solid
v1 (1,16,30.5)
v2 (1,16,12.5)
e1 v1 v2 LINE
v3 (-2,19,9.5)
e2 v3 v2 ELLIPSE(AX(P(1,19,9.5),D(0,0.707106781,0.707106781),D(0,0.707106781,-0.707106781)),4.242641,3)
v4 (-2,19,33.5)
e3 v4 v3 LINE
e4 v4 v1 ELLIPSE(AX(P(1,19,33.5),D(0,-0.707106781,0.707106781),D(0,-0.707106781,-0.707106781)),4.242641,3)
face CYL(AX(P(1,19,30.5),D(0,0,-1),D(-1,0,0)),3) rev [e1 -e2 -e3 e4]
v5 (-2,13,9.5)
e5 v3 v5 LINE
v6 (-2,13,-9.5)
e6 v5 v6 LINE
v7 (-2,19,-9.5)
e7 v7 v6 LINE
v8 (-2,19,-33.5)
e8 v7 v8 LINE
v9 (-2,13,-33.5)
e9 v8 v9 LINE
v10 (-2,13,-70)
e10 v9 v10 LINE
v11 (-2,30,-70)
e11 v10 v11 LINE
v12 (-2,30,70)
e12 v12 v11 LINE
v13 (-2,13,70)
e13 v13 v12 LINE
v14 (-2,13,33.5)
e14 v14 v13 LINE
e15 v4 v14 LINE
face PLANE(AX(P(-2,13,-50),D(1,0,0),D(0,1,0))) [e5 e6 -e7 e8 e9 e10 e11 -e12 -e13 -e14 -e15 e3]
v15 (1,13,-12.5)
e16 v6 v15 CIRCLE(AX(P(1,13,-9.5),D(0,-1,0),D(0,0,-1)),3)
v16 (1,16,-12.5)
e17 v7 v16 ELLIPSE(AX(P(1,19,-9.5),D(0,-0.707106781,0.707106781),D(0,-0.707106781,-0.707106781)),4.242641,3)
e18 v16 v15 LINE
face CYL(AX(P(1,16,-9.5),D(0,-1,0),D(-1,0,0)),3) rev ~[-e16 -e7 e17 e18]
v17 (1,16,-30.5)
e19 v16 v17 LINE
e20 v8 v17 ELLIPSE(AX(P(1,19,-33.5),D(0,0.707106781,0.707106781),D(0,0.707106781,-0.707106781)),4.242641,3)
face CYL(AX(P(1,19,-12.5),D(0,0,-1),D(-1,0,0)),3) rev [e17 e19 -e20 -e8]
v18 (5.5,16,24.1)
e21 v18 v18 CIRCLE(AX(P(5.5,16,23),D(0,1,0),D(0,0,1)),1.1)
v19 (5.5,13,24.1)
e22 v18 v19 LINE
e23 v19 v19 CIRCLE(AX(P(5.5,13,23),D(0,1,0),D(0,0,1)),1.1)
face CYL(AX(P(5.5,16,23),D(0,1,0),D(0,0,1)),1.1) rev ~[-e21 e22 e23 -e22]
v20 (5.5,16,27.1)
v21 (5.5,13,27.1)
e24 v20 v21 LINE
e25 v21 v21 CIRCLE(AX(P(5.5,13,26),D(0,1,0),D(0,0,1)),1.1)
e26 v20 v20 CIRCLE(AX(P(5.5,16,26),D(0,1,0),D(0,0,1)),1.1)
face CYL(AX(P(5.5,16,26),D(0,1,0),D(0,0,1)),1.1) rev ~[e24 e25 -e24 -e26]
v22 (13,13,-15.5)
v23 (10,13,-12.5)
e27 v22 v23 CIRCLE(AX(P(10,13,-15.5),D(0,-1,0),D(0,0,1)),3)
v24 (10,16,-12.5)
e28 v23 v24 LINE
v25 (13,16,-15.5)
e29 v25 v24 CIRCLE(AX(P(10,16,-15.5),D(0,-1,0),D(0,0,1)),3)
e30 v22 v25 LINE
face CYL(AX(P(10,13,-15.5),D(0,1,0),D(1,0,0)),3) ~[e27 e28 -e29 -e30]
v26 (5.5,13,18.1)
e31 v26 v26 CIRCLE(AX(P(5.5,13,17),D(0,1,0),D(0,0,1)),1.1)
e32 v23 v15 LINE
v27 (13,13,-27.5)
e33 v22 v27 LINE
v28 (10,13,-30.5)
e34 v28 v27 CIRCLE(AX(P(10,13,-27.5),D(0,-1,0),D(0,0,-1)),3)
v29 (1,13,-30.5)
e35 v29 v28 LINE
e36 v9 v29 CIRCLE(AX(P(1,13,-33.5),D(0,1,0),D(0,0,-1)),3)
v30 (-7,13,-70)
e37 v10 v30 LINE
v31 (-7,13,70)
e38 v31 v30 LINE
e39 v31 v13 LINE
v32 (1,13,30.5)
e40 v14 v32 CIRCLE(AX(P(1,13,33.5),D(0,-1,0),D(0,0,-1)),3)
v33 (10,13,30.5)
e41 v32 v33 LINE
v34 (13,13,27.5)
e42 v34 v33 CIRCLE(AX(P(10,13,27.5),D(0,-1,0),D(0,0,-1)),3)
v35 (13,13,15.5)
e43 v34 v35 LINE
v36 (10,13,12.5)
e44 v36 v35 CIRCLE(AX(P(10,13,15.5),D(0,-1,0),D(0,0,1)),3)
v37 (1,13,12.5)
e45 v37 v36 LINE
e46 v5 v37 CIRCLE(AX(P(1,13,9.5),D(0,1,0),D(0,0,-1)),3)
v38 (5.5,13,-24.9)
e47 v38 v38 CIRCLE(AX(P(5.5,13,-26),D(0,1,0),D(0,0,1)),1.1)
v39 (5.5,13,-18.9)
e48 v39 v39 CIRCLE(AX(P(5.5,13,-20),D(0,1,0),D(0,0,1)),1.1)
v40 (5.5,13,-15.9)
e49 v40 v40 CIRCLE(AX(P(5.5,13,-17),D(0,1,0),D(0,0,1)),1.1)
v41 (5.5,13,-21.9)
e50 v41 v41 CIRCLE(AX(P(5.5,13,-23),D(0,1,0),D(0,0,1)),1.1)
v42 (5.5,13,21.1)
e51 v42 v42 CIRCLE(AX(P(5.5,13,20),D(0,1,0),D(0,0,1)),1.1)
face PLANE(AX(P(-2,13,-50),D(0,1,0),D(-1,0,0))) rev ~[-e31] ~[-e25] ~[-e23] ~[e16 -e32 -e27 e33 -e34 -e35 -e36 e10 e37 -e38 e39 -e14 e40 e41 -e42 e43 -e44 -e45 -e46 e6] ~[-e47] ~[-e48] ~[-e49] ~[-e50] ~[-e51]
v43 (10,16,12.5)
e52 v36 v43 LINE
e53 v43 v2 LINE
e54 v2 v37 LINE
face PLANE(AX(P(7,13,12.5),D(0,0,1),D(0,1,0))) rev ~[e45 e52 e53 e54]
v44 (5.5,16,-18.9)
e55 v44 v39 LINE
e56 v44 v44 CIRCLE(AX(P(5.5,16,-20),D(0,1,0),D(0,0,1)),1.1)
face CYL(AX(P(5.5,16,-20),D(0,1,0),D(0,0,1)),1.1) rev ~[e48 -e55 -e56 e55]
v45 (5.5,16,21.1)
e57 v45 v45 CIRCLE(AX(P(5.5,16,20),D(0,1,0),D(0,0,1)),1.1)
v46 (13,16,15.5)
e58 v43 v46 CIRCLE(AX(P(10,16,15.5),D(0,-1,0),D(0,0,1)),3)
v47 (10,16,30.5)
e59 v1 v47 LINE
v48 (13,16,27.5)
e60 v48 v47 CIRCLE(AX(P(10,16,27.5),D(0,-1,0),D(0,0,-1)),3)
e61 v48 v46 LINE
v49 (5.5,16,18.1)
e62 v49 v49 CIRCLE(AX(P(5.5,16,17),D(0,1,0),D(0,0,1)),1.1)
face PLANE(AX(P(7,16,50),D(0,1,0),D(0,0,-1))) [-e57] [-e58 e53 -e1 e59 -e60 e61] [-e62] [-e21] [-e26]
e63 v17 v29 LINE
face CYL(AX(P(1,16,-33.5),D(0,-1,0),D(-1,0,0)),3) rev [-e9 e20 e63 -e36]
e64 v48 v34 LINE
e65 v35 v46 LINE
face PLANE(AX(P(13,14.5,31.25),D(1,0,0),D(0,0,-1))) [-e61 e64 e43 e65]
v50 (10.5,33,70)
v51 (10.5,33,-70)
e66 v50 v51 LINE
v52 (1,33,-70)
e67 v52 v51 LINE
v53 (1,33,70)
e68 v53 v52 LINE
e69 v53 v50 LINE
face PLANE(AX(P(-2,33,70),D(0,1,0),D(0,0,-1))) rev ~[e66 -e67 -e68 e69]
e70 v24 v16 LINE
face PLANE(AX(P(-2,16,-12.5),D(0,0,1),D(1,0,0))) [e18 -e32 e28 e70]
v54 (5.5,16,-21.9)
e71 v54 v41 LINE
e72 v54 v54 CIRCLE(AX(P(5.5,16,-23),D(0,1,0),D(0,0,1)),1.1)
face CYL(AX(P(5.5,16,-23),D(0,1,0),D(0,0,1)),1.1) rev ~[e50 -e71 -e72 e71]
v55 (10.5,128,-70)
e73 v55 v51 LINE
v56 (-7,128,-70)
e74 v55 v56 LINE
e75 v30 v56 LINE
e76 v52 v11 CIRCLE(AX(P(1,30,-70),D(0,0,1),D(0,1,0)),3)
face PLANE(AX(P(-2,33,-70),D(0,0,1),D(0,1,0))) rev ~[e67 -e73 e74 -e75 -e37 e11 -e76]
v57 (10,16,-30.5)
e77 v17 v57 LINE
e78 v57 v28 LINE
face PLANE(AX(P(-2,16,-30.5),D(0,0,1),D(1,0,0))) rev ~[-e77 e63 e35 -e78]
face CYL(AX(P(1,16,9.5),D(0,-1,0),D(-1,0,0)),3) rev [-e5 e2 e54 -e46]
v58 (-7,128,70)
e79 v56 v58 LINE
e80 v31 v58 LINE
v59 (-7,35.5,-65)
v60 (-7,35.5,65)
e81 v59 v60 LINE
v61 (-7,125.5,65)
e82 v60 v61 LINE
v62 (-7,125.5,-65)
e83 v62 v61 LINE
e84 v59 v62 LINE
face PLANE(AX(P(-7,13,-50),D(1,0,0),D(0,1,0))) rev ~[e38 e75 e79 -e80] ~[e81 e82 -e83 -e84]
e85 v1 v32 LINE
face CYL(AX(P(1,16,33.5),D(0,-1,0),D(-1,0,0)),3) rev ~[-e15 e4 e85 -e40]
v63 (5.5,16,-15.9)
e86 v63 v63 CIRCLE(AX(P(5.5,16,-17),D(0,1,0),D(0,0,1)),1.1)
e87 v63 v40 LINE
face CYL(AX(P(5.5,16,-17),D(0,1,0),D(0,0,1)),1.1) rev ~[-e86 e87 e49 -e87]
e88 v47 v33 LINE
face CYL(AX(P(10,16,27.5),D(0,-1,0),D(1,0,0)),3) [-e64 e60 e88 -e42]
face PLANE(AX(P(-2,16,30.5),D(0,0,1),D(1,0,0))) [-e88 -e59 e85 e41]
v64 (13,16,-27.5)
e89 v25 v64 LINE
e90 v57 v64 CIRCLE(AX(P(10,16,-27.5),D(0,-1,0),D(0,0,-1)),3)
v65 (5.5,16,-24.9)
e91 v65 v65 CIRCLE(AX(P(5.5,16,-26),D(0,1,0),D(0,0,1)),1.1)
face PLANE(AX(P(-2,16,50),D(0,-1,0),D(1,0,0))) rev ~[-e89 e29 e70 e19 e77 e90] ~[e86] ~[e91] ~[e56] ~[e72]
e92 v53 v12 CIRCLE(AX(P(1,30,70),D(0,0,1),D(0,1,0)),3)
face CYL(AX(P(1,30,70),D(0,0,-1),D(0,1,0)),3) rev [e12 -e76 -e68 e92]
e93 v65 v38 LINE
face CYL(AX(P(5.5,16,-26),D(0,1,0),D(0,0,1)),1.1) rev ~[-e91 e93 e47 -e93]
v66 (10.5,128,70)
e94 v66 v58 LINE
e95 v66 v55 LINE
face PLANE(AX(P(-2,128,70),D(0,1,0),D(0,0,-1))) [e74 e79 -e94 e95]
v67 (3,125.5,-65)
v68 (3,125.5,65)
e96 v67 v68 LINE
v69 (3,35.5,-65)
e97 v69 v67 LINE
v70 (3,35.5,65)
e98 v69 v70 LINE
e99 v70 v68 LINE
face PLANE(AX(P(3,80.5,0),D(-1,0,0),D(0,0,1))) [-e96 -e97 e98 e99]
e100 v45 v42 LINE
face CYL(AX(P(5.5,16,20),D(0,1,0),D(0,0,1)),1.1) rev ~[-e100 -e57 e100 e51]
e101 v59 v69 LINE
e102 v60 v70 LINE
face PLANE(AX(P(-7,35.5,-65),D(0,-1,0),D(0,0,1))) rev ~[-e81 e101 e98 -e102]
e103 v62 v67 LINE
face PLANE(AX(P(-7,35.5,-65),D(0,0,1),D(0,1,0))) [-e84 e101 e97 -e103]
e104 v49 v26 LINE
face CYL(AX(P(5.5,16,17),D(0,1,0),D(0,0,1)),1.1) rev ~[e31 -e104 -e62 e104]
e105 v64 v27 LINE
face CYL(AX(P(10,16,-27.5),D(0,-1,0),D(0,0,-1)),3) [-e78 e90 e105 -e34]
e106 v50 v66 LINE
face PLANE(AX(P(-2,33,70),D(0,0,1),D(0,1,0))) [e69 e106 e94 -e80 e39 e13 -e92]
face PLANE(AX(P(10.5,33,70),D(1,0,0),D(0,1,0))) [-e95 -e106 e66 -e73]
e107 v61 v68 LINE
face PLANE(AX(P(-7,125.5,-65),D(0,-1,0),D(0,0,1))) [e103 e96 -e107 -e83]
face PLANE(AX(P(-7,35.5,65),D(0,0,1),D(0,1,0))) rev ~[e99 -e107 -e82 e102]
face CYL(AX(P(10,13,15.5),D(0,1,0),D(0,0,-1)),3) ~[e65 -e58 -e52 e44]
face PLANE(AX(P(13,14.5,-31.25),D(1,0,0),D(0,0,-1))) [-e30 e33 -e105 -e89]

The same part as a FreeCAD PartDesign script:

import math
import FreeCAD as App
import Part
import Sketcher

V = App.Vector


def edges_at(feature, points):
    """Names of the edges that pass closest to the given points."""
    edges = feature.Shape.Edges
    near = lambda p: min(range(len(edges)), key=lambda i: edges[i].distToShape(Part.Vertex(*p))[0])
    return sorted({f"Edge{near(p) + 1}" for p in points})


def add_polygon(sketch, points):
    """Adds a closed chain of lines whose ends are joined by coincident constraints."""
    first, n = sketch.GeometryCount, len(points)
    for a, b in zip(points, points[1:] + points[:1]):
        sketch.addGeometry(Part.LineSegment(App.Vector(*a, 0), App.Vector(*b, 0)), False)
    for i in range(n):
        sketch.addConstraint(Sketcher.Constraint("Coincident", first + i, 2, first + (i + 1) % n, 1))

doc = App.newDocument("Part")
body = doc.addObject("PartDesign::Body", "Body")

sketch1 = body.newObject("Sketcher::SketchObject", "Sketch")
sketch1.AttachmentSupport = (doc.getObject("XZ_Plane"), [""])
sketch1.MapMode = "FlatFace"
sketch1.addGeometry(Part.Circle(V(0, 0, 0), V(0, 0, 1), 10), False)
sketch1.addConstraint(Sketcher.Constraint("Coincident", 0, 3, -1, 1))
sketch1.addConstraint(Sketcher.Constraint("Diameter", 0, 20.0))
pad1 = body.newObject("PartDesign::Pad", "Pad")
pad1.Profile = sketch1
pad1.Length = 3
pad1.Reversed = True

sketch2 = body.newObject("Sketcher::SketchObject", "Sketch001")
sketch2.AttachmentSupport = (doc.getObject("XZ_Plane"), [""])
sketch2.MapMode = "FlatFace"
sketch2.AttachmentOffset = App.Placement(V(0, 0, -3), App.Rotation())
sketch2.addGeometry(Part.Circle(V(0, 0, 0), V(0, 0, 1), 5), False)
sketch2.addConstraint(Sketcher.Constraint("Coincident", 0, 3, -1, 1))
sketch2.addConstraint(Sketcher.Constraint("Diameter", 0, 10.0))
pad2 = body.newObject("PartDesign::Pad", "Pad001")
pad2.Profile = sketch2
pad2.Length = 100
pad2.Reversed = True

sketch3 = body.newObject("Sketcher::SketchObject", "Sketch002")
sketch3.AttachmentSupport = (doc.getObject("XZ_Plane"), [""])
sketch3.MapMode = "FlatFace"
sketch3.addGeometry(Part.ArcOfCircle(Part.Circle(V(0, 0, 0), V(0, 0, 1), 2.5), math.radians(-139.112229), math.radians(139.112229)), False)
sketch3.addGeometry(Part.LineSegment(V(-1.889983, 1.636449, 0), V(-1.889983, -1.636449, 0)), False)
sketch3.addConstraint(Sketcher.Constraint("Coincident", 0, 1, 1, 2))
sketch3.addConstraint(Sketcher.Constraint("Coincident", 1, 1, 0, 2))
sketch3.addConstraint(Sketcher.Constraint("Vertical", 1))
sketch3.addConstraint(Sketcher.Constraint("Coincident", 0, 3, -1, 1))
sketch3.addConstraint(Sketcher.Constraint("Radius", 0, 2.5))
sketch3.addConstraint(Sketcher.Constraint("DistanceY", 1, 2, 1, 1, 3.272897))
pocket1 = body.newObject("PartDesign::Pocket", "Pocket")
pocket1.Profile = sketch3
pocket1.Length = 15

sketch4 = body.newObject("Sketcher::SketchObject", "Sketch003")
sketch4.AttachmentSupport = (doc.getObject("XZ_Plane"), [""])
sketch4.MapMode = "FlatFace"
sketch4.AttachmentOffset = App.Placement(V(0, 0, -103), App.Rotation())
add_polygon(sketch4, [(-7, -50), (-7, 50), (7, 50), (7, -50)])
sketch4.addConstraint(Sketcher.Constraint("Vertical", 0))
sketch4.addConstraint(Sketcher.Constraint("Horizontal", 1))
sketch4.addConstraint(Sketcher.Constraint("Vertical", 2))
sketch4.addConstraint(Sketcher.Constraint("Horizontal", 3))
sketch4.addConstraint(Sketcher.Constraint("Symmetric", 0, 2, 2, 2, -1, 1))
sketch4.addConstraint(Sketcher.Constraint("DistanceX", 1, 1, 1, 2, 14.0))
sketch4.addConstraint(Sketcher.Constraint("DistanceY", 0, 1, 0, 2, 100.0))
pad3 = body.newObject("PartDesign::Pad", "Pad002")
pad3.Profile = sketch4
pad3.Length = 90

sketch5 = body.newObject("Sketcher::SketchObject", "Sketch004")
sketch5.AttachmentSupport = (doc.getObject("XZ_Plane"), [""])
sketch5.MapMode = "FlatFace"
sketch5.AttachmentOffset = App.Placement(V(0, 0, -8), App.Rotation())
sketch5.addGeometry(Part.Circle(V(0, 0, 0), V(0, 0, 1), 10), False)
sketch5.addConstraint(Sketcher.Constraint("Coincident", 0, 3, -1, 1))
sketch5.addConstraint(Sketcher.Constraint("Diameter", 0, 20.0))
pad4 = body.newObject("PartDesign::Pad", "Pad003")
pad4.Profile = sketch5
pad4.Length = 3
pad4.Reversed = True

sketch6 = body.newObject("Sketcher::SketchObject", "Sketch005")
sketch6.AttachmentSupport = (doc.getObject("XY_Plane"), [""])
sketch6.MapMode = "FlatFace"
sketch6.AttachmentOffset = App.Placement(V(0, 0, 50), App.Rotation())
add_polygon(sketch6, [(-14.176374, 13), (-14.176374, 0), (17.362076, 0), (17.362076, 13)])
sketch6.addConstraint(Sketcher.Constraint("Vertical", 0))
sketch6.addConstraint(Sketcher.Constraint("Horizontal", 1))
sketch6.addConstraint(Sketcher.Constraint("Vertical", 2))
sketch6.addConstraint(Sketcher.Constraint("Horizontal", 3))
sketch6.addConstraint(Sketcher.Constraint("PointOnObject", 0, 2, -1))
sketch6.addConstraint(Sketcher.Constraint("DistanceY", 0, 2, 0, 1, 13.0))
sketch6.addConstraint(Sketcher.Constraint("DistanceX", 1, 1, 1, 2, 31.538451))
sketch6.addConstraint(Sketcher.Constraint("DistanceX", 0, 2, -1, 1, 14.176374))
pocket2 = body.newObject("PartDesign::Pocket", "Pocket001")
pocket2.Profile = sketch6
pocket2.Length = 80

sketch7 = body.newObject("Sketcher::SketchObject", "Sketch006")
sketch7.AttachmentSupport = (doc.getObject("XY_Plane"), [""])
sketch7.MapMode = "FlatFace"
sketch7.AttachmentOffset = App.Placement(V(0, 0, 50), App.Rotation())
add_polygon(sketch7, [(-2, 103), (-2, 16), (7, 16), (7, 103)])
sketch7.addConstraint(Sketcher.Constraint("Vertical", 0))
sketch7.addConstraint(Sketcher.Constraint("Horizontal", 1))
sketch7.addConstraint(Sketcher.Constraint("Vertical", 2))
sketch7.addConstraint(Sketcher.Constraint("Horizontal", 3))
sketch7.addConstraint(Sketcher.Constraint("DistanceX", 1, 1, 1, 2, 9.0))
sketch7.addConstraint(Sketcher.Constraint("DistanceY", 0, 2, 0, 1, 87.0))
sketch7.addConstraint(Sketcher.Constraint("DistanceX", 0, 2, -1, 1, 2.0))
sketch7.addConstraint(Sketcher.Constraint("DistanceY", -1, 1, 0, 2, 16.0))
pocket3 = body.newObject("PartDesign::Pocket", "Pocket002")
pocket3.Profile = sketch7
pocket3.Length = 130

sketch8 = body.newObject("Sketcher::SketchObject", "Sketch007")
sketch8.AttachmentSupport = (doc.getObject("XZ_Plane"), [""])
sketch8.MapMode = "FlatFace"
sketch8.AttachmentOffset = App.Placement(V(0, 0, -16), App.Rotation())
add_polygon(sketch8, [(-2, -12.5), (-2, 12.5), (7, 12.5), (7, -12.5)])
sketch8.addConstraint(Sketcher.Constraint("Vertical", 0))
sketch8.addConstraint(Sketcher.Constraint("Horizontal", 1))
sketch8.addConstraint(Sketcher.Constraint("Vertical", 2))
sketch8.addConstraint(Sketcher.Constraint("Horizontal", 3))
sketch8.addConstraint(Sketcher.Constraint("DistanceX", 1, 1, 1, 2, 9.0))
sketch8.addConstraint(Sketcher.Constraint("DistanceY", 0, 1, 0, 2, 25.0))
sketch8.addConstraint(Sketcher.Constraint("DistanceX", 0, 2, -1, 1, 2.0))
sketch8.addConstraint(Sketcher.Constraint("DistanceY", -1, 1, 0, 2, 12.5))
pocket4 = body.newObject("PartDesign::Pocket", "Pocket003")
pocket4.Profile = sketch8
pocket4.Length = 80
pocket4.Reversed = True

sketch9 = body.newObject("Sketcher::SketchObject", "Sketch008")
sketch9.AttachmentSupport = (doc.getObject("YZ_Plane"), [""])
sketch9.MapMode = "FlatFace"
sketch9.AttachmentOffset = App.Placement(V(0, 0, 7), App.Rotation())
add_polygon(sketch9, [(16, 50), (13, 50), (13, 12.5), (16, 12.5)])
add_polygon(sketch9, [(16, -12.5), (13, -12.5), (13, -50), (16, -50)])
sketch9.addConstraint(Sketcher.Constraint("Horizontal", 0))
sketch9.addConstraint(Sketcher.Constraint("Vertical", 1))
sketch9.addConstraint(Sketcher.Constraint("Horizontal", 2))
sketch9.addConstraint(Sketcher.Constraint("Vertical", 3))
sketch9.addConstraint(Sketcher.Constraint("Horizontal", 4))
sketch9.addConstraint(Sketcher.Constraint("Vertical", 5))
sketch9.addConstraint(Sketcher.Constraint("Horizontal", 6))
sketch9.addConstraint(Sketcher.Constraint("Vertical", 7))
sketch9.addConstraint(Sketcher.Constraint("Symmetric", 1, 2, 4, 2, -1))
sketch9.addConstraint(Sketcher.Constraint("Symmetric", 3, 2, 6, 2, -1))
sketch9.addConstraint(Sketcher.Constraint("DistanceX", 0, 2, 0, 1, 3.0))
sketch9.addConstraint(Sketcher.Constraint("DistanceY", 1, 2, 1, 1, 37.5))
sketch9.addConstraint(Sketcher.Constraint("DistanceX", -1, 1, 0, 2, 13.0))
sketch9.addConstraint(Sketcher.Constraint("DistanceY", -1, 1, 0, 2, 50.0))
pad5 = body.newObject("PartDesign::Pad", "Pad004")
pad5.Profile = sketch9
pad5.Length = 6

sketch10 = body.newObject("Sketcher::SketchObject", "Sketch009")
sketch10.AttachmentSupport = (doc.getObject("XZ_Plane"), [""])
sketch10.MapMode = "FlatFace"
sketch10.AttachmentOffset = App.Placement(V(0, 0, -16), App.Rotation())
sketch10.addGeometry(Part.Circle(V(5.5, 17, 0), V(0, 0, 1), 1.1), False)
sketch10.addGeometry(Part.Circle(V(5.5, 20, 0), V(0, 0, 1), 1.1), False)
sketch10.addGeometry(Part.Circle(V(5.5, 23, 0), V(0, 0, 1), 1.1), False)
sketch10.addGeometry(Part.Circle(V(5.5, 26, 0), V(0, 0, 1), 1.1), False)
sketch10.addGeometry(Part.Circle(V(5.5, -26, 0), V(0, 0, 1), 1.1), False)
sketch10.addGeometry(Part.Circle(V(5.5, -23, 0), V(0, 0, 1), 1.1), False)
sketch10.addGeometry(Part.Circle(V(5.5, -20, 0), V(0, 0, 1), 1.1), False)
sketch10.addGeometry(Part.Circle(V(5.5, -17, 0), V(0, 0, 1), 1.1), False)
sketch10.addConstraint(Sketcher.Constraint("Equal", 0, 1))
sketch10.addConstraint(Sketcher.Constraint("Equal", 1, 2))
sketch10.addConstraint(Sketcher.Constraint("Equal", 2, 3))
sketch10.addConstraint(Sketcher.Constraint("Equal", 3, 4))
sketch10.addConstraint(Sketcher.Constraint("Equal", 4, 5))
sketch10.addConstraint(Sketcher.Constraint("Equal", 5, 6))
sketch10.addConstraint(Sketcher.Constraint("Equal", 6, 7))
sketch10.addConstraint(Sketcher.Constraint("Symmetric", 3, 3, 4, 3, -1))
sketch10.addConstraint(Sketcher.Constraint("Symmetric", 2, 3, 5, 3, -1))
sketch10.addConstraint(Sketcher.Constraint("Symmetric", 1, 3, 6, 3, -1))
sketch10.addConstraint(Sketcher.Constraint("Symmetric", 0, 3, 7, 3, -1))
sketch10.addConstraint(Sketcher.Constraint("Vertical", 0, 3, 1, 3))
sketch10.addConstraint(Sketcher.Constraint("Vertical", 1, 3, 2, 3))
sketch10.addConstraint(Sketcher.Constraint("Vertical", 2, 3, 3, 3))
sketch10.addConstraint(Sketcher.Constraint("Diameter", 0, 2.2))
sketch10.addConstraint(Sketcher.Constraint("DistanceY", -1, 1, 0, 3, 17.0))
sketch10.addConstraint(Sketcher.Constraint("DistanceY", -1, 1, 1, 3, 20.0))
sketch10.addConstraint(Sketcher.Constraint("DistanceY", -1, 1, 2, 3, 23.0))
sketch10.addConstraint(Sketcher.Constraint("DistanceY", -1, 1, 3, 3, 26.0))
sketch10.addConstraint(Sketcher.Constraint("DistanceX", -1, 1, 0, 3, 5.5))
pocket5 = body.newObject("PartDesign::Pocket", "Pocket004")
pocket5.Profile = sketch10
pocket5.Length = 56
pocket5.Reversed = True

sketch11 = body.newObject("Sketcher::SketchObject", "Sketch010")
sketch11.AttachmentSupport = (doc.getObject("XZ_Plane"), [""])
sketch11.MapMode = "FlatFace"
sketch11.AttachmentOffset = App.Placement(V(0, 0, -16), App.Rotation())
add_polygon(sketch11, [(-2, 30.5), (-2, 50), (13, 50), (13, 30.5)])
add_polygon(sketch11, [(-2, -50), (-2, -30.5), (13, -30.5), (13, -50)])
sketch11.addConstraint(Sketcher.Constraint("Vertical", 0))
sketch11.addConstraint(Sketcher.Constraint("Horizontal", 1))
sketch11.addConstraint(Sketcher.Constraint("Vertical", 2))
sketch11.addConstraint(Sketcher.Constraint("Horizontal", 3))
sketch11.addConstraint(Sketcher.Constraint("Vertical", 4))
sketch11.addConstraint(Sketcher.Constraint("Horizontal", 5))
sketch11.addConstraint(Sketcher.Constraint("Vertical", 6))
sketch11.addConstraint(Sketcher.Constraint("Horizontal", 7))
sketch11.addConstraint(Sketcher.Constraint("Symmetric", 3, 2, 4, 2, -1))
sketch11.addConstraint(Sketcher.Constraint("Symmetric", 1, 2, 6, 2, -1))
sketch11.addConstraint(Sketcher.Constraint("DistanceX", 1, 1, 1, 2, 15.0))
sketch11.addConstraint(Sketcher.Constraint("DistanceY", 0, 1, 0, 2, 19.5))
sketch11.addConstraint(Sketcher.Constraint("DistanceX", 0, 2, -1, 1, 2.0))
sketch11.addConstraint(Sketcher.Constraint("DistanceY", -1, 1, 0, 2, 50.0))
pocket6 = body.newObject("PartDesign::Pocket", "Pocket005")
pocket6.Profile = sketch11
pocket6.Length = 56
pocket6.Reversed = True
doc.recompute()

fillet = body.newObject("PartDesign::Fillet", "Fillet")
fillet.Base = (pocket6, edges_at(pocket6, [
    (-2, 16, 21.5),
    (-2, 14.5, 12.5),
    (-2, 14.5, -12.5),
    (13, 14.5, 12.5),
    (13, 14.5, -12.5),
    (13, 14.5, -30.5),
    (13, 14.5, 30.5),
    (-2, 16, -21.5),
    (-2, 14.5, 30.5),
    (-2, 14.5, -30.5),
]))
fillet.Radius = 3

sketch12 = body.newObject("Sketcher::SketchObject", "Sketch011")
sketch12.AttachmentSupport = (doc.getObject("XZ_Plane"), [""])
sketch12.MapMode = "FlatFace"
sketch12.AttachmentOffset = App.Placement(V(0, 0, -103), App.Rotation())
add_polygon(sketch12, [(-7, -50), (-7, 50), (-2, 50), (-2, -50)])
sketch12.addConstraint(Sketcher.Constraint("Vertical", 0))
sketch12.addConstraint(Sketcher.Constraint("Horizontal", 1))
sketch12.addConstraint(Sketcher.Constraint("Vertical", 2))
sketch12.addConstraint(Sketcher.Constraint("Horizontal", 3))
sketch12.addConstraint(Sketcher.Constraint("DistanceX", 1, 1, 1, 2, 5.0))
sketch12.addConstraint(Sketcher.Constraint("DistanceY", 0, 1, 0, 2, 100.0))
sketch12.addConstraint(Sketcher.Constraint("DistanceX", 0, 2, -1, 1, 7.0))
sketch12.addConstraint(Sketcher.Constraint("DistanceY", -1, 1, 0, 2, 50.0))
pad6 = body.newObject("PartDesign::Pad", "Pad005")
pad6.Profile = sketch12
pad6.Length = 25
pad6.Reversed = True

sketch13 = body.newObject("Sketcher::SketchObject", "Sketch012")
sketch13.AttachmentSupport = (doc.getObject("XY_Plane"), [""])
sketch13.MapMode = "FlatFace"
sketch13.AttachmentOffset = App.Placement(V(0, 0, 50), App.Rotation())
add_polygon(sketch13, [(-7, 128), (-7, 13), (-2, 13), (-2, 128)])
sketch13.addConstraint(Sketcher.Constraint("Vertical", 0))
sketch13.addConstraint(Sketcher.Constraint("Horizontal", 1))
sketch13.addConstraint(Sketcher.Constraint("Vertical", 2))
sketch13.addConstraint(Sketcher.Constraint("Horizontal", 3))
sketch13.addConstraint(Sketcher.Constraint("DistanceX", 1, 1, 1, 2, 5.0))
sketch13.addConstraint(Sketcher.Constraint("DistanceY", 0, 2, 0, 1, 115.0))
sketch13.addConstraint(Sketcher.Constraint("DistanceX", 0, 2, -1, 1, 7.0))
sketch13.addConstraint(Sketcher.Constraint("DistanceY", -1, 1, 0, 2, 13.0))
pad7 = body.newObject("PartDesign::Pad", "Pad006")
pad7.Profile = sketch13
pad7.Length = 20

sketch14 = body.newObject("Sketcher::SketchObject", "Sketch013")
sketch14.AttachmentSupport = (doc.getObject("XY_Plane"), [""])
sketch14.MapMode = "FlatFace"
sketch14.AttachmentOffset = App.Placement(V(0, 0, -50), App.Rotation())
add_polygon(sketch14, [(-2, 128), (-2, 13), (-7, 13), (-7, 128)])
sketch14.addConstraint(Sketcher.Constraint("Vertical", 0))
sketch14.addConstraint(Sketcher.Constraint("Horizontal", 1))
sketch14.addConstraint(Sketcher.Constraint("Vertical", 2))
sketch14.addConstraint(Sketcher.Constraint("Horizontal", 3))
sketch14.addConstraint(Sketcher.Constraint("DistanceX", 1, 2, 1, 1, 5.0))
sketch14.addConstraint(Sketcher.Constraint("DistanceY", 0, 2, 0, 1, 115.0))
sketch14.addConstraint(Sketcher.Constraint("DistanceX", 0, 2, -1, 1, 2.0))
sketch14.addConstraint(Sketcher.Constraint("DistanceY", -1, 1, 0, 2, 13.0))
pad8 = body.newObject("PartDesign::Pad", "Pad007")
pad8.Profile = sketch14
pad8.Length = 20
pad8.Reversed = True

sketch15 = body.newObject("Sketcher::SketchObject", "Sketch014")
sketch15.AttachmentSupport = (doc.getObject("YZ_Plane"), [""])
sketch15.MapMode = "FlatFace"
sketch15.AttachmentOffset = App.Placement(V(0, 0, -2), App.Rotation())
add_polygon(sketch15, [(128, 70), (33, 70), (33, -70), (128, -70)])
sketch15.addConstraint(Sketcher.Constraint("Horizontal", 0))
sketch15.addConstraint(Sketcher.Constraint("Vertical", 1))
sketch15.addConstraint(Sketcher.Constraint("Horizontal", 2))
sketch15.addConstraint(Sketcher.Constraint("Vertical", 3))
sketch15.addConstraint(Sketcher.Constraint("DistanceX", 0, 2, 0, 1, 95.0))
sketch15.addConstraint(Sketcher.Constraint("DistanceY", 1, 2, 1, 1, 140.0))
sketch15.addConstraint(Sketcher.Constraint("DistanceX", -1, 1, 0, 2, 33.0))
sketch15.addConstraint(Sketcher.Constraint("DistanceY", -1, 1, 0, 2, 70.0))
pad9 = body.newObject("PartDesign::Pad", "Pad008")
pad9.Profile = sketch15
pad9.Length = 15

sketch16 = body.newObject("Sketcher::SketchObject", "Sketch015")
sketch16.AttachmentSupport = (doc.getObject("YZ_Plane"), [""])
sketch16.MapMode = "FlatFace"
sketch16.AttachmentOffset = App.Placement(V(0, 0, -7), App.Rotation())
add_polygon(sketch16, [(125.5, -65), (35.5, -65), (35.5, 65), (125.5, 65)])
sketch16.addConstraint(Sketcher.Constraint("Horizontal", 0))
sketch16.addConstraint(Sketcher.Constraint("Vertical", 1))
sketch16.addConstraint(Sketcher.Constraint("Horizontal", 2))
sketch16.addConstraint(Sketcher.Constraint("Vertical", 3))
sketch16.addConstraint(Sketcher.Constraint("DistanceX", 0, 2, 0, 1, 90.0))
sketch16.addConstraint(Sketcher.Constraint("DistanceY", 1, 1, 1, 2, 130.0))
sketch16.addConstraint(Sketcher.Constraint("DistanceY", 0, 2, -1, 1, 65.0))
sketch16.addConstraint(Sketcher.Constraint("DistanceX", -1, 1, 0, 2, 35.5))
pocket7 = body.newObject("PartDesign::Pocket", "Pocket006")
pocket7.Profile = sketch16
pocket7.Length = 10
pocket7.Reversed = True
doc.recompute()

fillet2 = body.newObject("PartDesign::Fillet", "Fillet001")
fillet2.Base = (pocket7, edges_at(pocket7, [(-2, 33, 0)]))
fillet2.Radius = 3

sketch17 = body.newObject("Sketcher::SketchObject", "Sketch016")
sketch17.AttachmentSupport = (doc.getObject("XY_Plane"), [""])
sketch17.MapMode = "FlatFace"
sketch17.AttachmentOffset = App.Placement(V(0, 0, 70), App.Rotation())
add_polygon(sketch17, [(10.5, 128), (10.5, 33), (13, 33), (13, 128)])
sketch17.addConstraint(Sketcher.Constraint("Vertical", 0))
sketch17.addConstraint(Sketcher.Constraint("Horizontal", 1))
sketch17.addConstraint(Sketcher.Constraint("Vertical", 2))
sketch17.addConstraint(Sketcher.Constraint("Horizontal", 3))
sketch17.addConstraint(Sketcher.Constraint("DistanceY", 0, 2, 0, 1, 95.0))
sketch17.addConstraint(Sketcher.Constraint("DistanceX", 1, 1, 1, 2, 2.5))
sketch17.addConstraint(Sketcher.Constraint("DistanceY", -1, 1, 0, 2, 33.0))
sketch17.addConstraint(Sketcher.Constraint("DistanceX", -1, 1, 1, 2, 13.0))
pocket8 = body.newObject("PartDesign::Pocket", "Pocket007")
pocket8.Profile = sketch17
pocket8.Length = 130

sketch18 = body.newObject("Sketcher::SketchObject", "Sketch017")
sketch18.AttachmentSupport = (doc.getObject("XZ_Plane"), [""])
sketch18.MapMode = "FlatFace"
sketch18.AttachmentOffset = App.Placement(V(0, 0, -128), App.Rotation())
add_polygon(sketch18, [(10.5, -70), (10.5, -60), (13, -60), (13, -70)])
sketch18.addConstraint(Sketcher.Constraint("Vertical", 0))
sketch18.addConstraint(Sketcher.Constraint("Horizontal", 1))
sketch18.addConstraint(Sketcher.Constraint("Vertical", 2))
sketch18.addConstraint(Sketcher.Constraint("Horizontal", 3))
sketch18.addConstraint(Sketcher.Constraint("DistanceY", 0, 1, 0, 2, 10.0))
sketch18.addConstraint(Sketcher.Constraint("DistanceX", 1, 1, 1, 2, 2.5))
sketch18.addConstraint(Sketcher.Constraint("DistanceY", 0, 2, -1, 1, 60.0))
sketch18.addConstraint(Sketcher.Constraint("DistanceX", -1, 1, 1, 2, 13.0))
pocket9 = body.newObject("PartDesign::Pocket", "Pocket008")
pocket9.Profile = sketch18
pocket9.Type = "ThroughAll"
pocket9.Reversed = True

doc.recompute()
